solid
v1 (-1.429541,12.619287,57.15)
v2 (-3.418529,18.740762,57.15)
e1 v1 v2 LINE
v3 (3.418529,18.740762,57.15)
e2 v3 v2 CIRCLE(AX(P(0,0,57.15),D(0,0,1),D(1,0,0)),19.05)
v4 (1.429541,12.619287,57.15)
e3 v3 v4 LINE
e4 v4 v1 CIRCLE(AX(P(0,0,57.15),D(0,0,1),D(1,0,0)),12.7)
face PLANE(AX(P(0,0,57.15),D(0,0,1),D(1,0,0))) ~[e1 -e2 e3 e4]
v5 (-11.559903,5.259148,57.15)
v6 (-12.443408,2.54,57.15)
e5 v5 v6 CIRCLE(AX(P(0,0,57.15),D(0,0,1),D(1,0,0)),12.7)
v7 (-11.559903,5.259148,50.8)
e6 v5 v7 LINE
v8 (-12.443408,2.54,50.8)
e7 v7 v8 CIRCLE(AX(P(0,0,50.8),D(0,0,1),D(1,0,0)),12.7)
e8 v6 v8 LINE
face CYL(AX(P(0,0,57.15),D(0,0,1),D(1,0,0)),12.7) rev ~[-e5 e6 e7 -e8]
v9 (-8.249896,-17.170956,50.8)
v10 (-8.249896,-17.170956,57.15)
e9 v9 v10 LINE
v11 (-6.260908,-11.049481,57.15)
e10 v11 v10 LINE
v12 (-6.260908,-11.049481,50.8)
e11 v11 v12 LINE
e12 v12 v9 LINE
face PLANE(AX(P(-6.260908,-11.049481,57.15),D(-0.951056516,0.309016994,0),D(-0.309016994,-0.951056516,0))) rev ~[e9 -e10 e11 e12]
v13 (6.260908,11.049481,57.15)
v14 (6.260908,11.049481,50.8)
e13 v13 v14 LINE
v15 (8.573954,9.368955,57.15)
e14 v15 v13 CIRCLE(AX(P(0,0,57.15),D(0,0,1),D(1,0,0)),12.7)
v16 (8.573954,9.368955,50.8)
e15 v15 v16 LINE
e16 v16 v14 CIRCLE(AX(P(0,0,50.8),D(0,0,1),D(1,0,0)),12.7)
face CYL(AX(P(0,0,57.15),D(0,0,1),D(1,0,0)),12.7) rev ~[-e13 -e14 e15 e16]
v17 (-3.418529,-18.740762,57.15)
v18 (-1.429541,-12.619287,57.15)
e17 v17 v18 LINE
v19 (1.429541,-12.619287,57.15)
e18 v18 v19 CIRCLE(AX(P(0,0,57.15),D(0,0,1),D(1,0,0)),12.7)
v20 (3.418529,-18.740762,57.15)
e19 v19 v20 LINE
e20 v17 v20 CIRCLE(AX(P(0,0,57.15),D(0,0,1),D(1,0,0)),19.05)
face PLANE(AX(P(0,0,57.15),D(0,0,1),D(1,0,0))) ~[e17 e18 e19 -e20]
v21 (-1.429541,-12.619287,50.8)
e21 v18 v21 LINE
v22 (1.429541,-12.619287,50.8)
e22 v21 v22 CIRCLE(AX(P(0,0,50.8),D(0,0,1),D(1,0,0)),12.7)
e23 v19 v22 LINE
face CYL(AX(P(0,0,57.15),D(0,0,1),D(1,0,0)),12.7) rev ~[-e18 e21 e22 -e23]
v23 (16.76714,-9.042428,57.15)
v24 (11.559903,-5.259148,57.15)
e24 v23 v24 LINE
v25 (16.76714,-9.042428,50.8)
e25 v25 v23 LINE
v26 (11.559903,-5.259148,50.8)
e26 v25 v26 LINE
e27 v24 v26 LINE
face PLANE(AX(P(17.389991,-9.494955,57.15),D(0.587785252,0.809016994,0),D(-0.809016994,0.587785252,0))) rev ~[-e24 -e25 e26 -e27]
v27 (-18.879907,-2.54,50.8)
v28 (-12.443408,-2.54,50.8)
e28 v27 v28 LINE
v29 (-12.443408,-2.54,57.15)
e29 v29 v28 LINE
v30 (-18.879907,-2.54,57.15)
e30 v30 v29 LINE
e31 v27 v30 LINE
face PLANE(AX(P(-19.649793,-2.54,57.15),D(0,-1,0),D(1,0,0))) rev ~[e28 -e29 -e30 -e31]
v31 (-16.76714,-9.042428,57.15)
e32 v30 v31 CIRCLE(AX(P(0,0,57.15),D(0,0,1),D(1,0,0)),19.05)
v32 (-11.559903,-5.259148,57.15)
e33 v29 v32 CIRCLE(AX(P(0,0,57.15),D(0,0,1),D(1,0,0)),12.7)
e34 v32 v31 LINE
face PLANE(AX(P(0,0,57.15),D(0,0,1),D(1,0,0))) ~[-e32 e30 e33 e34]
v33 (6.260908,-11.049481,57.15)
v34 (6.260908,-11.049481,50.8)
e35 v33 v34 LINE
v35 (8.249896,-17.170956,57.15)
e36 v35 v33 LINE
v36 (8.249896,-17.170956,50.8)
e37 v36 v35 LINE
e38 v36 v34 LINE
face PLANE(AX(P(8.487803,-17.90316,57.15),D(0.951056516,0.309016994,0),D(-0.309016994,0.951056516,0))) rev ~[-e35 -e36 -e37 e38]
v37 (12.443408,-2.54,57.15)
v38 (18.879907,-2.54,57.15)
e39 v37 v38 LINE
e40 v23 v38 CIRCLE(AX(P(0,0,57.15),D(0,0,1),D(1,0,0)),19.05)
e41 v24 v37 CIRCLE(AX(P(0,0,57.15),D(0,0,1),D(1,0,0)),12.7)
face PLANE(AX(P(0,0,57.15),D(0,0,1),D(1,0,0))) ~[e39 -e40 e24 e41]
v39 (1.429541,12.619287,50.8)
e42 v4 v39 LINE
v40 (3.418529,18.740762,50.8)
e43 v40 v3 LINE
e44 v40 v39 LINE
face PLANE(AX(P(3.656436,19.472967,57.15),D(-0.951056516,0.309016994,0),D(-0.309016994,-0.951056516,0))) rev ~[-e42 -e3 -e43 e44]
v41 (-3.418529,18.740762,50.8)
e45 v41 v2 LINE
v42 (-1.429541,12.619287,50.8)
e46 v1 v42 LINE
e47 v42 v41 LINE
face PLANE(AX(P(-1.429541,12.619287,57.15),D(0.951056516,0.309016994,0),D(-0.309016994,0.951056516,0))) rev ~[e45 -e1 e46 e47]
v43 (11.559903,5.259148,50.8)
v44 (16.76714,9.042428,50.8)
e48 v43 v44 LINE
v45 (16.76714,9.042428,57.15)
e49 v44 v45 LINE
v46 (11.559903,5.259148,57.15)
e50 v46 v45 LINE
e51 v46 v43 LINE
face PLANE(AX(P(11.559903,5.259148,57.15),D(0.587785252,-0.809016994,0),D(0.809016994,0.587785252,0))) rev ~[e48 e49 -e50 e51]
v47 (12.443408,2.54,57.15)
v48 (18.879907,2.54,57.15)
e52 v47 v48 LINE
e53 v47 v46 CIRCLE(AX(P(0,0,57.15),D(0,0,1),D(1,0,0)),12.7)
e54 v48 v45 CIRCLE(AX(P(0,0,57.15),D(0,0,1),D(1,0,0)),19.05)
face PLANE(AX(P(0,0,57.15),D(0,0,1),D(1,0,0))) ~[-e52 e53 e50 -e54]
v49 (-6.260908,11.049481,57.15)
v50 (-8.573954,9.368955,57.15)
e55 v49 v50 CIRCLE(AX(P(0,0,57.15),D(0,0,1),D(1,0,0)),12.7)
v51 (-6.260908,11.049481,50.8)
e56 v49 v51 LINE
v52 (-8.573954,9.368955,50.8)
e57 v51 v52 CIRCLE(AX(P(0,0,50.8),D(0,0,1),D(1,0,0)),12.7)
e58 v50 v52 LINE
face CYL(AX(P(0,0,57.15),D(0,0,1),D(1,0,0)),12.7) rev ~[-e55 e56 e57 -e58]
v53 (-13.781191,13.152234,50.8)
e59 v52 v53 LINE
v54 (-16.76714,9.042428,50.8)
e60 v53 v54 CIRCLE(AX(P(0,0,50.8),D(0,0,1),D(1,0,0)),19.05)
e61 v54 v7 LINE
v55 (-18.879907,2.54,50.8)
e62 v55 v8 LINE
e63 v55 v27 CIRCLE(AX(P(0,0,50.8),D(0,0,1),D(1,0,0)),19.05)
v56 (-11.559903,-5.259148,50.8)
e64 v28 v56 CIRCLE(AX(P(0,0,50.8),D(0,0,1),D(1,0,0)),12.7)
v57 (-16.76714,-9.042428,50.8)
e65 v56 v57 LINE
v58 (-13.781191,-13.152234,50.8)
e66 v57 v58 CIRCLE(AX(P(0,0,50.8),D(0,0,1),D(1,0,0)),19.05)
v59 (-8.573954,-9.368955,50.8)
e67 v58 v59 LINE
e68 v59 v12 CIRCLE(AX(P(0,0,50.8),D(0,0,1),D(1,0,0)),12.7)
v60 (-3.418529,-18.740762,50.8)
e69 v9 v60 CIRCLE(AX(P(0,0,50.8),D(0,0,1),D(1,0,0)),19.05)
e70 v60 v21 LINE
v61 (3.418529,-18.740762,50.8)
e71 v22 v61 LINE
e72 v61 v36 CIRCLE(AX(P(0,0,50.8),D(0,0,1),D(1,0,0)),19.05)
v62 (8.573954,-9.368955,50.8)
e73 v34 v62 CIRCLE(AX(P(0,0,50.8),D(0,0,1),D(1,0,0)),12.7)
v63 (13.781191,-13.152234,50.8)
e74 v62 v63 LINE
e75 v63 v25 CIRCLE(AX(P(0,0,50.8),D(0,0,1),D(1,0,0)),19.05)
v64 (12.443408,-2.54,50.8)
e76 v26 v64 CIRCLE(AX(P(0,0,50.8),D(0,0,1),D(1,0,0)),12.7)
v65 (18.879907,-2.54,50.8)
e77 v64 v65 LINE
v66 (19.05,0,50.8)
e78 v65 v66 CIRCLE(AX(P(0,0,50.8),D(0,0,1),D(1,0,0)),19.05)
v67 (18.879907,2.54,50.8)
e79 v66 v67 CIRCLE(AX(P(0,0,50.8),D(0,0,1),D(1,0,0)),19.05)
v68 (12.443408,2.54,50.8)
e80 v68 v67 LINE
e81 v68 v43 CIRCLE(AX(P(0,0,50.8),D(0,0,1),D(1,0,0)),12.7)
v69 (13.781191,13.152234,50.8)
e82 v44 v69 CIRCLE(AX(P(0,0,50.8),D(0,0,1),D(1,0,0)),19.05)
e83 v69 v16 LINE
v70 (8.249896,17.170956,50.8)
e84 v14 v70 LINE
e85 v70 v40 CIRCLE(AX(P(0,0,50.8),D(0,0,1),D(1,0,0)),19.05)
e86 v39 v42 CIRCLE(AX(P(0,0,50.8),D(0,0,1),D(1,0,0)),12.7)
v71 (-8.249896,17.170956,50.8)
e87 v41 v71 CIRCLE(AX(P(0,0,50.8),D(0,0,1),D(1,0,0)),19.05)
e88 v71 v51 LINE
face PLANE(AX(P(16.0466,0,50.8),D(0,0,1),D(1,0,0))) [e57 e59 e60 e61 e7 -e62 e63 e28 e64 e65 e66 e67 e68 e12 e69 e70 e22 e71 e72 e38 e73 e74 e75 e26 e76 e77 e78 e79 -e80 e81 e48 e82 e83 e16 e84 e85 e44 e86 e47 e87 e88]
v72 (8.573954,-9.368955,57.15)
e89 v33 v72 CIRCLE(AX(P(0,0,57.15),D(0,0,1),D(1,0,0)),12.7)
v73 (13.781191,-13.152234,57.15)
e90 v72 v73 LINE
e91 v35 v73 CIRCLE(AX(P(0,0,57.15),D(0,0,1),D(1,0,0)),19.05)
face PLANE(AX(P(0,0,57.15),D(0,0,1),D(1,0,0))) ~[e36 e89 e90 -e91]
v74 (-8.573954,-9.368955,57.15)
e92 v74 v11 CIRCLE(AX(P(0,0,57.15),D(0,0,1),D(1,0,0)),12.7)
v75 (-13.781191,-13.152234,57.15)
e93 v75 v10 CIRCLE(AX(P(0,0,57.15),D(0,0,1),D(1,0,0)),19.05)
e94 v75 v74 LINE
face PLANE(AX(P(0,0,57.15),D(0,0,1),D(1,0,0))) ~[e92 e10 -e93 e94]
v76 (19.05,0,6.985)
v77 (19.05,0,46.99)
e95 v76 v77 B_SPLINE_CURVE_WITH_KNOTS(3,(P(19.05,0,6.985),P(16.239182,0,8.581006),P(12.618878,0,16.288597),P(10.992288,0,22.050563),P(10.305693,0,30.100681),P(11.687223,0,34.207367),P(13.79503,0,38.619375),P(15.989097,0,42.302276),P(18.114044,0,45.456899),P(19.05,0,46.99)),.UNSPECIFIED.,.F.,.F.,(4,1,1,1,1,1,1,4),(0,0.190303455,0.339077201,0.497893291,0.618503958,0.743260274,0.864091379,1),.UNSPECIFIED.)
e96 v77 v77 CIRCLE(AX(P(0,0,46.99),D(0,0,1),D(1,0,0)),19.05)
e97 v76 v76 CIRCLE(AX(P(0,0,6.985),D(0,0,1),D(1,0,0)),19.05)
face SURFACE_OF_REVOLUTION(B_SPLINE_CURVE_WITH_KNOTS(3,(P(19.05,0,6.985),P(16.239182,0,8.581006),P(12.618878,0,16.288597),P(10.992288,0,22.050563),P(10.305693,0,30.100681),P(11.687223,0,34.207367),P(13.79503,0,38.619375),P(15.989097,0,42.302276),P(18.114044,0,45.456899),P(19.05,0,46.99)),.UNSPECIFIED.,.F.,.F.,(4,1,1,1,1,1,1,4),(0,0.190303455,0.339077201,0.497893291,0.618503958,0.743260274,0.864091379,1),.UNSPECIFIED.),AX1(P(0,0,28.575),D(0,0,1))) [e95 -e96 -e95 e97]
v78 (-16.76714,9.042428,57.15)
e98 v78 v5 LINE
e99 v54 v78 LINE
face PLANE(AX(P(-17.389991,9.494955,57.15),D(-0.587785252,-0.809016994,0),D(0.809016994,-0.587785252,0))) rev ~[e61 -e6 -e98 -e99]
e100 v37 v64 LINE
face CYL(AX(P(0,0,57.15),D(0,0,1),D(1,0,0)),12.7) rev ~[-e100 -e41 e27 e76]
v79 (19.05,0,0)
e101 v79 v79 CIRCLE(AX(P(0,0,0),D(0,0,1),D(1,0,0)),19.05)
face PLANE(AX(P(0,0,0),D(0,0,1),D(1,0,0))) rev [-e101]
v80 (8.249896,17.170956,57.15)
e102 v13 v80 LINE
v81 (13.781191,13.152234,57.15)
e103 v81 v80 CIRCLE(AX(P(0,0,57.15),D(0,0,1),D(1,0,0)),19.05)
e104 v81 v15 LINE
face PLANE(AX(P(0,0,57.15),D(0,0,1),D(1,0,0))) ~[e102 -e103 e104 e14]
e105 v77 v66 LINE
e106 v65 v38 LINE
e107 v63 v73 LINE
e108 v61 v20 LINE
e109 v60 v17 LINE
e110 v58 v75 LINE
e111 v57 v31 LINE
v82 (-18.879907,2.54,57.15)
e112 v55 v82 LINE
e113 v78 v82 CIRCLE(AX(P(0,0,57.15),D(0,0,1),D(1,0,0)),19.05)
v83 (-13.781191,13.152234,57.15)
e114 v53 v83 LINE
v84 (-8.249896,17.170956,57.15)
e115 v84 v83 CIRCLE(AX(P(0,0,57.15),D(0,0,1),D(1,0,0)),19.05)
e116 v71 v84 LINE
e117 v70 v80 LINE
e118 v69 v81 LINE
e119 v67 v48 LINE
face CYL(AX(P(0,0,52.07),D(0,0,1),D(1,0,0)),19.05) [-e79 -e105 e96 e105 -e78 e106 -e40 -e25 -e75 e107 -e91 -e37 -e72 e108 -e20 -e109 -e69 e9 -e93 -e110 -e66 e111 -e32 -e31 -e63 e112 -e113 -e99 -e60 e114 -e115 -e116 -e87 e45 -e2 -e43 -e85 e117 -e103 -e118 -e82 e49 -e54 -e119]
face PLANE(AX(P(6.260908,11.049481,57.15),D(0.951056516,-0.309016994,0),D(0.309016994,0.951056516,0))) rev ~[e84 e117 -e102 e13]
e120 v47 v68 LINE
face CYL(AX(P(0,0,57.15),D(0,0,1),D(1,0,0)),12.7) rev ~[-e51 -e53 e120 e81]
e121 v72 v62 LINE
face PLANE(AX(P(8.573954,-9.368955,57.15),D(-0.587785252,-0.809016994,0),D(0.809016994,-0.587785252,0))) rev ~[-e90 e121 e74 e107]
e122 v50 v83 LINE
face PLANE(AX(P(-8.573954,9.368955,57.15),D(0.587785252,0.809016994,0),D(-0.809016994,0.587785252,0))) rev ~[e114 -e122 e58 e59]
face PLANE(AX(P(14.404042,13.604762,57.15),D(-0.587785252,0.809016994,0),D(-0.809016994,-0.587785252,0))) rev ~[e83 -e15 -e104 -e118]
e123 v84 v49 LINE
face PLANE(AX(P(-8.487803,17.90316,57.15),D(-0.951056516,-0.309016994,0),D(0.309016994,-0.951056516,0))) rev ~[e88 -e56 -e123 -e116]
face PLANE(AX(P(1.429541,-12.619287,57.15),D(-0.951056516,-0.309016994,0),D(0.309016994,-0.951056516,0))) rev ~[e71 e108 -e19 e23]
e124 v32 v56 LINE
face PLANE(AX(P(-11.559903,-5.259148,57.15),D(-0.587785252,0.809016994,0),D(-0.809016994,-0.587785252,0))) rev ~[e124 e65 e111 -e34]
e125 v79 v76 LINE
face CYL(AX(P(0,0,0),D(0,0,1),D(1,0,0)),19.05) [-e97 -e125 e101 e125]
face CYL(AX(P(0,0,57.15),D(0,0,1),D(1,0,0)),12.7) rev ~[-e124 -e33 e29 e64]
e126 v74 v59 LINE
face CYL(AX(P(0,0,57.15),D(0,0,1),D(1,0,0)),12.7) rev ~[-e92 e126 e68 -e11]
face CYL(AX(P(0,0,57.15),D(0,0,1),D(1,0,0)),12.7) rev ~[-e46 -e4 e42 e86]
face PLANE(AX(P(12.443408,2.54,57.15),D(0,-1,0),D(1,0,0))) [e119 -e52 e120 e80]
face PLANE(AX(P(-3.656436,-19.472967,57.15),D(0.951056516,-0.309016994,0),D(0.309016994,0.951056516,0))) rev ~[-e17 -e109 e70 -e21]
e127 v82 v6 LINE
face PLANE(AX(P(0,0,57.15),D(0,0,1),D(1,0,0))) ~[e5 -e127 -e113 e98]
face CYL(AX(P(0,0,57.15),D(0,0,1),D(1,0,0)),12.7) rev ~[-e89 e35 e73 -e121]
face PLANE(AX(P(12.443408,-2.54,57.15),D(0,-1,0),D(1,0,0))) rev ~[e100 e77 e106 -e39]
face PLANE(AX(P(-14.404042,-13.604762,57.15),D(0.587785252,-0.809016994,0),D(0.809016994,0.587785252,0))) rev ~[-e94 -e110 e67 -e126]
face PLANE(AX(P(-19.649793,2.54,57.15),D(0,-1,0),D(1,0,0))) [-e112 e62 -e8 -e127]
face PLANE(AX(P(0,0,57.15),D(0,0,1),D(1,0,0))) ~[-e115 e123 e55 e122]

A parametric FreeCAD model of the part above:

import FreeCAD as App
import Part
import Sketcher

V = App.Vector
Q = App.Units.Quantity


def add_polygon(sketch, points):
    """Adds a closed chain of lines whose ends are joined by coincident constraints."""
    first, n = sketch.GeometryCount, len(points)
    for a, b in zip(points, points[1:] + points[:1]):
        sketch.addGeometry(Part.LineSegment(App.Vector(*a, 0), App.Vector(*b, 0)), False)
    for i in range(n):
        sketch.addConstraint(Sketcher.Constraint("Coincident", first + i, 2, first + (i + 1) % n, 1))

doc = App.newDocument("Part")
body = doc.addObject("PartDesign::Body", "Body")

# Sketch on XZ plane
sketch1 = doc.addObject("Sketcher::SketchObject", "Sketch")
body.addObject(sketch1)
sketch1.AttachmentSupport = (doc.XZ_Plane, [""])
sketch1.MapMode = "FlatFace"
sketch1.addGeometry([
    Part.LineSegment(V(0, 0, 0), V(19.05, 0, 0)),  # 0
    Part.LineSegment(V(19.05, 0, 0), V(19.05, 6.985, 0)),  # 1
    Part.BSplineCurve([V(19.05, 6.985, 0), V(16.239182, 8.581006, 0), V(12.618878, 16.288597, 0), V(10.992288, 22.050563, 0), V(10.305693, 30.100681, 0), V(11.687223, 34.207367, 0), V(13.79503, 38.619375, 0), V(15.989097, 42.302276, 0), V(18.114044, 45.456899, 0), V(19.05, 46.99, 0)], [4, 1, 1, 1, 1, 1, 1, 4], [0, 0.190303455, 0.339077201, 0.497893291, 0.618503958, 0.743260274, 0.864091379, 1], False, 3, [1, 1, 1, 1, 1, 1, 1, 1, 1, 1], False),  # 2
    Part.LineSegment(V(19.05, 46.99, 0), V(19.05, 57.15, 0)),  # 3
    Part.LineSegment(V(19.05, 57.15, 0), V(0, 57.15, 0)),  # 4
    Part.LineSegment(V(0, 57.15, 0), V(0, 0, 0)),  # 5
], False)
sketch1.addConstraint([
    Sketcher.Constraint("Block", 2),
    Sketcher.Constraint("Coincident", 0, 2, 1, 1),
    Sketcher.Constraint("Coincident", 1, 2, 2, 1),
    Sketcher.Constraint("Coincident", 2, 2, 3, 1),
    Sketcher.Constraint("Coincident", 3, 2, 4, 1),
    Sketcher.Constraint("Coincident", 4, 2, 5, 1),
    Sketcher.Constraint("Coincident", 5, 2, 0, 1),
    Sketcher.Constraint("Horizontal", 0),
    Sketcher.Constraint("Vertical", 1),
    Sketcher.Constraint("Vertical", 3),
    Sketcher.Constraint("Horizontal", 4),
    Sketcher.Constraint("Vertical", 5),
    Sketcher.Constraint("Coincident", 5, 2, -1, 1),
    Sketcher.Constraint("DistanceY", 3, 1, 3, 2, Q("0.4 in")),
])
revolution = doc.addObject("PartDesign::Revolution", "Revolution")
body.addObject(revolution)
revolution.Profile = sketch1
revolution.ReferenceAxis = (sketch1, ["V_Axis"])
revolution.Angle = 360

# Sketch on XY plane
sketch2 = doc.addObject("Sketcher::SketchObject", "Sketch001")
body.addObject(sketch2)
sketch2.AttachmentSupport = (doc.XY_Plane, [""])
sketch2.MapMode = "FlatFace"
sketch2.AttachmentOffset = App.Placement(V(0, 0, 2.25 * 25.4), App.Rotation())
sketch2.addGeometry(Part.Circle(V(0, 0, 0), V(0, 0, 1), 13), False)
sketch2.addConstraint([
    Sketcher.Constraint("Coincident", 0, 3, -1, 1),
    Sketcher.Constraint("Diameter", 0, Q("1 in")),
])
pocket1 = doc.addObject("PartDesign::Pocket", "Pocket")
body.addObject(pocket1)
pocket1.Profile = sketch2
pocket1.Length = Q("0.25 in")

# Sketch on XY plane
sketch3 = doc.addObject("Sketcher::SketchObject", "Sketch002")
body.addObject(sketch3)
sketch3.AttachmentSupport = (doc.XY_Plane, [""])
sketch3.MapMode = "FlatFace"
sketch3.AttachmentOffset = App.Placement(V(0, 0, 2.25 * 25.4), App.Rotation())
add_polygon(sketch3, [(12, 3), (12, -3), (20, -3), (20, 3)])  # lines 0-3
add_polygon(sketch3, [(14, 14), (9, 9), (12, 5), (17, 9)])  # lines 4-7
add_polygon(sketch3, [(4, 19), (1, 13), (6, 11), (8, 18)])  # lines 8-11
add_polygon(sketch3, [(-8, 18), (-6, 11), (-1, 13), (-4, 19)])  # lines 12-15
add_polygon(sketch3, [(-17, 9), (-12, 5), (-9, 9), (-14, 14)])  # lines 16-19
add_polygon(sketch3, [(-20, 3), (-20, -3), (-12, -3), (-12, 3)])  # lines 20-23
add_polygon(sketch3, [(-14, -14), (-9, -9), (-12, -5), (-17, -9)])  # lines 24-27
add_polygon(sketch3, [(-4, -19), (-1, -13), (-6, -11), (-8, -18)])  # lines 28-31
add_polygon(sketch3, [(8, -18), (6, -11), (1, -13), (4, -19)])  # lines 32-35
add_polygon(sketch3, [(17, -9), (12, -5), (9, -9), (14, -14)])  # lines 36-39
sketch3.addConstraint([
    Sketcher.Constraint("Vertical", 0),
    Sketcher.Constraint("Horizontal", 1),
    Sketcher.Constraint("Vertical", 2),
    Sketcher.Constraint("Horizontal", 3),
    Sketcher.Constraint("Vertical", 20),
    Sketcher.Constraint("Horizontal", 21),
    Sketcher.Constraint("Vertical", 22),
    Sketcher.Constraint("Horizontal", 23),
    Sketcher.Constraint("Symmetric", 2, 2, 20, 2, -1, 1),
    Sketcher.Constraint("Symmetric", 0, 2, 22, 2, -1, 1),
    Sketcher.Constraint("Symmetric", 4, 2, 24, 2, -1, 1),
    Sketcher.Constraint("Symmetric", 5, 2, 25, 2, -1, 1),
    Sketcher.Constraint("Symmetric", 6, 2, 26, 2, -1, 1),
    Sketcher.Constraint("Symmetric", 7, 2, 27, 2, -1, 1),
    Sketcher.Constraint("Symmetric", 8, 2, 28, 2, -1, 1),
    Sketcher.Constraint("Symmetric", 9, 2, 29, 2, -1, 1),
    Sketcher.Constraint("Symmetric", 10, 2, 30, 2, -1, 1),
    Sketcher.Constraint("Symmetric", 11, 2, 31, 2, -1, 1),
    Sketcher.Constraint("Symmetric", 12, 2, 32, 2, -1, 1),
    Sketcher.Constraint("Symmetric", 13, 2, 33, 2, -1, 1),
    Sketcher.Constraint("Symmetric", 14, 2, 34, 2, -1, 1),
    Sketcher.Constraint("Symmetric", 15, 2, 35, 2, -1, 1),
    Sketcher.Constraint("Symmetric", 16, 2, 36, 2, -1, 1),
    Sketcher.Constraint("Symmetric", 17, 2, 37, 2, -1, 1),
    Sketcher.Constraint("Symmetric", 18, 2, 38, 2, -1, 1),
    Sketcher.Constraint("Symmetric", 19, 2, 39, 2, -1, 1),
    Sketcher.Constraint("Symmetric", 9, 2, 12, 2, -2),
    Sketcher.Constraint("Symmetric", 8, 2, 13, 2, -2),
    Sketcher.Constraint("Symmetric", 11, 2, 14, 2, -2),
    Sketcher.Constraint("Symmetric", 10, 2, 15, 2, -2),
    Sketcher.Constraint("Symmetric", 5, 2, 16, 2, -2),
    Sketcher.Constraint("Symmetric", 4, 2, 17, 2, -2),
    Sketcher.Constraint("Symmetric", 7, 2, 18, 2, -2),
    Sketcher.Constraint("Symmetric", 6, 2, 19, 2, -2),
    Sketcher.Constraint("Perpendicular", 4, 5),
    Sketcher.Constraint("Perpendicular", 5, 6),
    Sketcher.Constraint("Perpendicular", 6, 7),
    Sketcher.Constraint("Perpendicular", 8, 9),
    Sketcher.Constraint("Perpendicular", 9, 10),
    Sketcher.Constraint("Perpendicular", 10, 11),
    Sketcher.Constraint("Horizontal", 1, 2, 20, 2),
    Sketcher.Constraint("Equal", 6, 8),
    Sketcher.Constraint("Equal", 7, 9),
    Sketcher.Constraint("DistanceY", 0, 2, 0, 1, Q("0.2 in")),
    Sketcher.Constraint("Angle", 4, Q("-144 deg")),
    Sketcher.Constraint("Angle", 8, Q("-108 deg")),
    Sketcher.Constraint("Distance", 5, Q("0.2 in")),
    Sketcher.Constraint("DistanceX", 6, 2, 2, 2, 2.259802),
    Sketcher.Constraint("DistanceY", 4, 2, 6, 2, 0.126),
    Sketcher.Constraint("DistanceX", 8, 2, 7, 2, 12.974501),
    Sketcher.Constraint("DistanceX", 9, 2, 3, 2, 6.1825),
    Sketcher.Constraint("DistanceY", 7, 2, 10, 2, 4.298399),
    Sketcher.Constraint("DistanceY", -1, 1, 5, 2, 5.259148),
    Sketcher.Constraint("DistanceX", -1, 1, 6, 2, 17.389991),
])
pocket2 = doc.addObject("PartDesign::Pocket", "Pocket001")
body.addObject(pocket2)
pocket2.Profile = sketch3
pocket2.Length = Q("0.25 in")

doc.recompute()
